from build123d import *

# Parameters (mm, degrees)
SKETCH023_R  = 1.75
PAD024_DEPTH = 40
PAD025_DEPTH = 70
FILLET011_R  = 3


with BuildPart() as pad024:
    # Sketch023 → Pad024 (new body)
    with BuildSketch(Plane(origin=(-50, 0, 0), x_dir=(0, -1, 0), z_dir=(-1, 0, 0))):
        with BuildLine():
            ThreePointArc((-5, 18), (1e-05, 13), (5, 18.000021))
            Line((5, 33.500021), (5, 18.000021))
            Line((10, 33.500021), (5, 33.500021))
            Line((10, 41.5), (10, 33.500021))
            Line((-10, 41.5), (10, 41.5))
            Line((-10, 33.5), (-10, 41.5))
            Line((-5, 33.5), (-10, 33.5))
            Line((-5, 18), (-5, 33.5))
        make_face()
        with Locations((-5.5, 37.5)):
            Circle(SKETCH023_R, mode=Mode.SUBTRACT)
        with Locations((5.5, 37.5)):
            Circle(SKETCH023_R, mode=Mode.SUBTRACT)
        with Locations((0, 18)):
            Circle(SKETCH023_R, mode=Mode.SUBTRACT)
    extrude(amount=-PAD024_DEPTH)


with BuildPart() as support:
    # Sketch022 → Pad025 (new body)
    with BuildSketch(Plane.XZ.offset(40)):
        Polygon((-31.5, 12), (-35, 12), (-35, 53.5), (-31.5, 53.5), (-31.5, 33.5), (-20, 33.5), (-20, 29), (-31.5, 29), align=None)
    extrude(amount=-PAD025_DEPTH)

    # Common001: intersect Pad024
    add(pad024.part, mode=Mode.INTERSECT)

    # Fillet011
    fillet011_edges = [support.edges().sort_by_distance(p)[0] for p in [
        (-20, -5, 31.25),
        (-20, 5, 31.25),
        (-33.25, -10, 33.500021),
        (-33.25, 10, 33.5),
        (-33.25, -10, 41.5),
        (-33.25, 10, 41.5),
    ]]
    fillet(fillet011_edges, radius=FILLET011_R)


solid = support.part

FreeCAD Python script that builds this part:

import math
import FreeCAD as App
import Part
import Sketcher

V = App.Vector
Q = App.Units.Quantity


def edges_at(feature, points):
    """Names of the edges that pass closest to the given points."""
    edges = feature.Shape.Edges
    near = lambda p: min(range(len(edges)), key=lambda i: edges[i].distToShape(Part.Vertex(*p))[0])
    return sorted({f"Edge{near(p) + 1}" for p in points})


def add_polygon(sketch, points):
    """Adds a closed chain of lines whose ends are joined by coincident constraints."""
    first, n = sketch.GeometryCount, len(points)
    for a, b in zip(points, points[1:] + points[:1]):
        sketch.addGeometry(Part.LineSegment(App.Vector(*a, 0), App.Vector(*b, 0)), False)
    for i in range(n):
        sketch.addConstraint(Sketcher.Constraint("Coincident", first + i, 2, first + (i + 1) % n, 1))

doc = App.newDocument("Part")
body = doc.addObject("PartDesign::Body", "Body")

sketch1 = doc.addObject("Sketcher::SketchObject", "Sketch")
body.addObject(sketch1)
sketch1.AttachmentSupport = (doc.YZ_Plane, [""])
sketch1.MapMode = "FlatFace"
sketch1.AttachmentOffset = App.Placement(V(0, 0, -50), App.Rotation())
sketch1.addGeometry([
    Part.ArcOfCircle(Part.Circle(V(0, 18, 0), V(0, 0, 1), 5), math.radians(180), math.radians(360)),
    Part.LineSegment(V(-5, 18, 0), V(-5, 33.5, 0)),
    Part.LineSegment(V(-5, 33.5, 0), V(-10, 33.5, 0)),
    Part.LineSegment(V(-10, 33.5, 0), V(-10, 41.5, 0)),
    Part.LineSegment(V(-10, 41.5, 0), V(10, 41.5, 0)),
    Part.LineSegment(V(10, 41.5, 0), V(10, 33.5, 0)),
    Part.LineSegment(V(10, 33.5, 0), V(5, 33.5, 0)),
    Part.LineSegment(V(5, 33.5, 0), V(5, 18, 0)),
    Part.Circle(V(0, 18, 0), V(0, 0, 1), 1.8),
    Part.Circle(V(5.5, 37.5, 0), V(0, 0, 1), 1.8),
    Part.Circle(V(-5.5, 37.5, 0), V(0, 0, 1), 1.8),
], False)
sketch1.addConstraint([
    Sketcher.Constraint("Coincident", 0, 1, 1, 1),
    Sketcher.Constraint("Coincident", 1, 2, 2, 1),
    Sketcher.Constraint("Coincident", 2, 2, 3, 1),
    Sketcher.Constraint("Coincident", 3, 2, 4, 1),
    Sketcher.Constraint("Coincident", 4, 2, 5, 1),
    Sketcher.Constraint("Coincident", 5, 2, 6, 1),
    Sketcher.Constraint("Coincident", 6, 2, 7, 1),
    Sketcher.Constraint("Tangent", 7, 2, 0, 2),
    Sketcher.Constraint("Vertical", 1),
    Sketcher.Constraint("Horizontal", 2),
    Sketcher.Constraint("Vertical", 3),
    Sketcher.Constraint("Horizontal", 4),
    Sketcher.Constraint("Vertical", 5),
    Sketcher.Constraint("Horizontal", 6),
    Sketcher.Constraint("Vertical", 7),
    Sketcher.Constraint("Coincident", 8, 3, 0, 3),
    Sketcher.Constraint("Equal", 8, 9),
    Sketcher.Constraint("Equal", 9, 10),
    Sketcher.Constraint("Symmetric", 9, 3, 10, 3, -2),
    Sketcher.Constraint("PointOnObject", 0, 3, -2),
    Sketcher.Constraint("Equal", 2, 6),
    Sketcher.Constraint("Equal", 1, 7),
    Sketcher.Constraint("Radius", 0, Q("5 mm")),
    Sketcher.Constraint("Diameter", 8, Q("3.5 mm")),
    Sketcher.Constraint("DistanceX", 2, 2, 2, 1, Q("5 mm")),
    Sketcher.Constraint("DistanceY", 5, 2, 5, 1, Q("8 mm")),
    Sketcher.Constraint("DistanceY", 1, 1, 1, 2, Q("15.5 mm")),
    Sketcher.Constraint("DistanceY", -1, 1, 0, 3, Q("18 mm")),
    Sketcher.Constraint("DistanceX", 10, 3, 9, 3, Q("11 mm")),
    Sketcher.Constraint("DistanceY", 10, 3, 3, 2, Q("4 mm")),
    Sketcher.Constraint("DistanceY", 3, 1, 3, 2, Q("7.999979 mm")),
])
pad1 = doc.addObject("PartDesign::Pad", "Pad")
body.addObject(pad1)
pad1.Profile = sketch1
pad1.Length = 40
body2 = doc.addObject("PartDesign::Body", "Body001")

sketch2 = doc.addObject("Sketcher::SketchObject", "Sketch001")
body2.addObject(sketch2)
sketch2.AttachmentSupport = (doc.getObject("XZ_Plane001"), [""])
sketch2.MapMode = "FlatFace"
sketch2.AttachmentOffset = App.Placement(V(0, 0, 40), App.Rotation())
add_polygon(sketch2, [(-35, 12), (-31.5, 12), (-31.5, 29), (-20, 29), (-20, 33.5), (-31.5, 33.5), (-31.5, 53.5), (-35, 53.5)])
sketch2.addConstraint([
    Sketcher.Constraint("Horizontal", 0),
    Sketcher.Constraint("Vertical", 1),
    Sketcher.Constraint("Horizontal", 2),
    Sketcher.Constraint("Vertical", 3),
    Sketcher.Constraint("Horizontal", 4),
    Sketcher.Constraint("Vertical", 5),
    Sketcher.Constraint("Horizontal", 6),
    Sketcher.Constraint("Vertical", 7),
    Sketcher.Constraint("Vertical", 1, 2, 4, 2),
    Sketcher.Constraint("DistanceY", 1, 1, 1, 2, Q("17 mm")),
    Sketcher.Constraint("DistanceY", 5, 1, 5, 2, Q("20 mm")),
    Sketcher.Constraint("DistanceX", 0, 1, 0, 2, Q("3.5 mm")),
    Sketcher.Constraint("DistanceX", 2, 1, 2, 2, Q("11.5 mm")),
    Sketcher.Constraint("DistanceY", 3, 1, 3, 2, Q("4.5 mm")),
    Sketcher.Constraint("DistanceY", -1, 1, 0, 2, Q("12 mm")),
    Sketcher.Constraint("DistanceX", 2, 2, -1, 1, Q("20 mm")),
])
pad2 = doc.addObject("PartDesign::Pad", "Pad001")
body2.addObject(pad2)
pad2.Profile = sketch2
pad2.Length = 70
pad2.Reversed = True
doc.recompute()

boolean = doc.addObject("PartDesign::Boolean", "Boolean")
body2.addObject(boolean)
boolean.Type = "Common"
boolean.addObjects([body])
doc.recompute()

fillet = doc.addObject("PartDesign::Fillet", "Fillet")
body2.addObject(fillet)
fillet.Base = (boolean, edges_at(boolean, [
    (-20, -5, 31.25),
    (-20, 5, 31.25),
    (-33.25, -10, 33.5),
    (-33.25, 10, 33.5),
    (-33.25, -10, 41.5),
    (-33.25, 10, 41.5),
]))
fillet.Radius = 3

doc.recompute()
